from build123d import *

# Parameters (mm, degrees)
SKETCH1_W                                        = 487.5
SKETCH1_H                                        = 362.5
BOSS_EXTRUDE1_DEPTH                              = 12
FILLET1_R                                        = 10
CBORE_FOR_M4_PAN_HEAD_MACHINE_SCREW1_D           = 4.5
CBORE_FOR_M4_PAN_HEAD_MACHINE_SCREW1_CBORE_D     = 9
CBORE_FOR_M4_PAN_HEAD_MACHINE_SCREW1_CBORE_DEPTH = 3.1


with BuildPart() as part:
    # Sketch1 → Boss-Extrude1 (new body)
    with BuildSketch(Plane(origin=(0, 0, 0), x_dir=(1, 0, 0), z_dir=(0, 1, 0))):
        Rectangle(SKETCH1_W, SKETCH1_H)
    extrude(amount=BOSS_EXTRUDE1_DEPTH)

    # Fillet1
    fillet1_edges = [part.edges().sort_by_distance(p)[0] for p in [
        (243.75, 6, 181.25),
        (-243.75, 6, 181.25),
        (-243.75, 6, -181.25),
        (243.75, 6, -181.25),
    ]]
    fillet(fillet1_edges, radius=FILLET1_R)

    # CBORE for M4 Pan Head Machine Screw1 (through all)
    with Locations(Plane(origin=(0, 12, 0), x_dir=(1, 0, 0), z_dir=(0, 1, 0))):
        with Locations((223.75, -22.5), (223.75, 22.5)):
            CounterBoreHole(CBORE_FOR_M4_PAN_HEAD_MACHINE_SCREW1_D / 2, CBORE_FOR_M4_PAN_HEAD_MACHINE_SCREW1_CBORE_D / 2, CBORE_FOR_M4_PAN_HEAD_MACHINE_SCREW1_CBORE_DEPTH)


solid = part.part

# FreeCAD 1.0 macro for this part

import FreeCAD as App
import Part
import Sketcher
Q = App.Units.Quantity


def edges_at(feature, points):
    """Names of the edges that pass closest to the given points."""
    edges = feature.Shape.Edges
    near = lambda p: min(range(len(edges)), key=lambda i: edges[i].distToShape(Part.Vertex(*p))[0])
    return sorted({f"Edge{near(p) + 1}" for p in points})

doc = App.newDocument("Part")
params = doc.addObject("Spreadsheet::Sheet", "Params")
for row, (alias, value) in enumerate([
    ("sketch1_width", "487.5 mm"),
    ("sketch1_height", "362.5 mm"),
    ("pad1_length", "12 mm"),
    ("fillet_radius", "10 mm"),
    ("sketch2_diameter", "4.5 mm"),
    ("hole_diameter", "4.5 mm"),
    ("hole_cbore_diameter", "9 mm"),
    ("hole_cbore_depth", "3.1 mm"),
], start=1):
    params.set(f"A{row}", alias)
    params.set(f"B{row}", "=" + value)
    params.setAlias(f"B{row}", alias)

body = doc.addObject("PartDesign::Body", "Body")

# Sketch on XZ plane
sketch1 = doc.addObject("Sketcher::SketchObject", "Sketch")
body.addObject(sketch1)
sketch1.AttachmentSupport = (doc.XZ_Plane, [""])
sketch1.MapMode = "FlatFace"
sketch1.addGeometry([
    Part.LineSegment(App.Vector(-244, -181, 0), App.Vector(-244, 181, 0)),
    Part.LineSegment(App.Vector(-244, 181, 0), App.Vector(244, 181, 0)),
    Part.LineSegment(App.Vector(244, 181, 0), App.Vector(244, -181, 0)),
    Part.LineSegment(App.Vector(244, -181, 0), App.Vector(-244, -181, 0)),
], False)
sketch1.addConstraint([
    Sketcher.Constraint("Coincident", 0, 2, 1, 1),
    Sketcher.Constraint("Coincident", 1, 2, 2, 1),
    Sketcher.Constraint("Coincident", 2, 2, 3, 1),
    Sketcher.Constraint("Coincident", 3, 2, 0, 1),
    Sketcher.Constraint("Vertical", 0),
    Sketcher.Constraint("Horizontal", 1),
    Sketcher.Constraint("Vertical", 2),
    Sketcher.Constraint("Horizontal", 3),
    Sketcher.Constraint("Symmetric", 0, 2, 2, 2, -1, 1),
    Sketcher.Constraint("DistanceX", 1, 1, 1, 2, Q("487.5 mm")),
    Sketcher.Constraint("DistanceY", 0, 1, 0, 2, Q("362.5 mm")),
])
sketch1.setExpression("Constraints[9]", "Params.sketch1_width")
sketch1.setExpression("Constraints[10]", "Params.sketch1_height")
pad1 = doc.addObject("PartDesign::Pad", "Pad")
body.addObject(pad1)
pad1.Profile = sketch1
pad1.setExpression("Length", "Params.pad1_length")
pad1.Reversed = True
doc.recompute()

fillet = doc.addObject("PartDesign::Fillet", "Fillet")
body.addObject(fillet)
fillet.Base = (pad1, edges_at(pad1, [
    (243.75, 6, 181.25),
    (-243.75, 6, 181.25),
    (-243.75, 6, -181.25),
    (243.75, 6, -181.25),
]))
fillet.setExpression("Radius", "Params.fillet_radius")

# Sketch on XZ plane
sketch2 = doc.addObject("Sketcher::SketchObject", "Sketch001")
body.addObject(sketch2)
sketch2.AttachmentSupport = (doc.XZ_Plane, [""])
sketch2.MapMode = "FlatFace"
sketch2.AttachmentOffset = App.Placement(App.Vector(0, 0, -12), App.Rotation())
sketch2.addGeometry([
    Part.Circle(App.Vector(223.8, 22.5, 0), App.Vector(0, 0, 1), 2.2),
    Part.Circle(App.Vector(223.8, -22.5, 0), App.Vector(0, 0, 1), 2.2),
], False)
sketch2.addConstraint([
    Sketcher.Constraint("Equal", 0, 1),
    Sketcher.Constraint("Symmetric", 0, 3, 1, 3, -1),
    Sketcher.Constraint("Diameter", 0, Q("4.5 mm")),
    Sketcher.Constraint("DistanceY", 1, 3, 0, 3, Q("45 mm")),
    Sketcher.Constraint("DistanceX", -1, 1, 0, 3, Q("223.75 mm")),
])
sketch2.setExpression("Constraints[2]", "Params.sketch2_diameter")
doc.recompute()
hole = doc.addObject("PartDesign::Hole", "Hole")
body.addObject(hole)
hole.Profile = sketch2
hole.ThreadType = "None"
hole.setExpression("Diameter", "Params.hole_diameter")
hole.DepthType = "ThroughAll"
hole.HoleCutType = "Counterbore"
hole.setExpression("HoleCutDiameter", "Params.hole_cbore_diameter")
hole.setExpression("HoleCutDepth", "Params.hole_cbore_depth")
hole.Reversed = True

doc.recompute()
